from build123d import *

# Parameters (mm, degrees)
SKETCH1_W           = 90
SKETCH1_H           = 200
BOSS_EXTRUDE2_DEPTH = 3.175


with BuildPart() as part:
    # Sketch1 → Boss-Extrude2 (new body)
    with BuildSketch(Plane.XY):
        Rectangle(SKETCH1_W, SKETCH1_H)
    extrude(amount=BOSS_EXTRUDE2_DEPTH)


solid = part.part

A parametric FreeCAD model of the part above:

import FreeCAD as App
import Part
import Sketcher

V = App.Vector
Q = App.Units.Quantity

doc = App.newDocument("Part")
body = doc.addObject("PartDesign::Body", "Body")

# Sketch on XY plane
sketch1 = body.newObject("Sketcher::SketchObject", "Sketch")
sketch1.AttachmentSupport = (doc.getObject("XY_Plane"), [""])
sketch1.MapMode = "FlatFace"
sketch1.addGeometry([
    Part.LineSegment(V(-45, 100, 0), V(-45, -100, 0)),
    Part.LineSegment(V(-45, -100, 0), V(45, -100, 0)),
    Part.LineSegment(V(45, -100, 0), V(45, 100, 0)),
    Part.LineSegment(V(45, 100, 0), V(-45, 100, 0)),
], False)
sketch1.addConstraint([
    Sketcher.Constraint("Coincident", 0, 2, 1, 1),
    Sketcher.Constraint("Coincident", 1, 2, 2, 1),
    Sketcher.Constraint("Coincident", 2, 2, 3, 1),
    Sketcher.Constraint("Coincident", 3, 2, 0, 1),
    Sketcher.Constraint("Vertical", 0),
    Sketcher.Constraint("Horizontal", 1),
    Sketcher.Constraint("Vertical", 2),
    Sketcher.Constraint("Horizontal", 3),
    Sketcher.Constraint("Symmetric", 0, 2, 2, 2, -1, 1),
    Sketcher.Constraint("DistanceX", 1, 1, 1, 2, Q("90 mm")),
    Sketcher.Constraint("DistanceY", 0, 2, 0, 1, Q("200 mm")),
])
pad1 = body.newObject("PartDesign::Pad", "Pad")
pad1.Profile = sketch1
pad1.Length = 3.175

doc.recompute()
